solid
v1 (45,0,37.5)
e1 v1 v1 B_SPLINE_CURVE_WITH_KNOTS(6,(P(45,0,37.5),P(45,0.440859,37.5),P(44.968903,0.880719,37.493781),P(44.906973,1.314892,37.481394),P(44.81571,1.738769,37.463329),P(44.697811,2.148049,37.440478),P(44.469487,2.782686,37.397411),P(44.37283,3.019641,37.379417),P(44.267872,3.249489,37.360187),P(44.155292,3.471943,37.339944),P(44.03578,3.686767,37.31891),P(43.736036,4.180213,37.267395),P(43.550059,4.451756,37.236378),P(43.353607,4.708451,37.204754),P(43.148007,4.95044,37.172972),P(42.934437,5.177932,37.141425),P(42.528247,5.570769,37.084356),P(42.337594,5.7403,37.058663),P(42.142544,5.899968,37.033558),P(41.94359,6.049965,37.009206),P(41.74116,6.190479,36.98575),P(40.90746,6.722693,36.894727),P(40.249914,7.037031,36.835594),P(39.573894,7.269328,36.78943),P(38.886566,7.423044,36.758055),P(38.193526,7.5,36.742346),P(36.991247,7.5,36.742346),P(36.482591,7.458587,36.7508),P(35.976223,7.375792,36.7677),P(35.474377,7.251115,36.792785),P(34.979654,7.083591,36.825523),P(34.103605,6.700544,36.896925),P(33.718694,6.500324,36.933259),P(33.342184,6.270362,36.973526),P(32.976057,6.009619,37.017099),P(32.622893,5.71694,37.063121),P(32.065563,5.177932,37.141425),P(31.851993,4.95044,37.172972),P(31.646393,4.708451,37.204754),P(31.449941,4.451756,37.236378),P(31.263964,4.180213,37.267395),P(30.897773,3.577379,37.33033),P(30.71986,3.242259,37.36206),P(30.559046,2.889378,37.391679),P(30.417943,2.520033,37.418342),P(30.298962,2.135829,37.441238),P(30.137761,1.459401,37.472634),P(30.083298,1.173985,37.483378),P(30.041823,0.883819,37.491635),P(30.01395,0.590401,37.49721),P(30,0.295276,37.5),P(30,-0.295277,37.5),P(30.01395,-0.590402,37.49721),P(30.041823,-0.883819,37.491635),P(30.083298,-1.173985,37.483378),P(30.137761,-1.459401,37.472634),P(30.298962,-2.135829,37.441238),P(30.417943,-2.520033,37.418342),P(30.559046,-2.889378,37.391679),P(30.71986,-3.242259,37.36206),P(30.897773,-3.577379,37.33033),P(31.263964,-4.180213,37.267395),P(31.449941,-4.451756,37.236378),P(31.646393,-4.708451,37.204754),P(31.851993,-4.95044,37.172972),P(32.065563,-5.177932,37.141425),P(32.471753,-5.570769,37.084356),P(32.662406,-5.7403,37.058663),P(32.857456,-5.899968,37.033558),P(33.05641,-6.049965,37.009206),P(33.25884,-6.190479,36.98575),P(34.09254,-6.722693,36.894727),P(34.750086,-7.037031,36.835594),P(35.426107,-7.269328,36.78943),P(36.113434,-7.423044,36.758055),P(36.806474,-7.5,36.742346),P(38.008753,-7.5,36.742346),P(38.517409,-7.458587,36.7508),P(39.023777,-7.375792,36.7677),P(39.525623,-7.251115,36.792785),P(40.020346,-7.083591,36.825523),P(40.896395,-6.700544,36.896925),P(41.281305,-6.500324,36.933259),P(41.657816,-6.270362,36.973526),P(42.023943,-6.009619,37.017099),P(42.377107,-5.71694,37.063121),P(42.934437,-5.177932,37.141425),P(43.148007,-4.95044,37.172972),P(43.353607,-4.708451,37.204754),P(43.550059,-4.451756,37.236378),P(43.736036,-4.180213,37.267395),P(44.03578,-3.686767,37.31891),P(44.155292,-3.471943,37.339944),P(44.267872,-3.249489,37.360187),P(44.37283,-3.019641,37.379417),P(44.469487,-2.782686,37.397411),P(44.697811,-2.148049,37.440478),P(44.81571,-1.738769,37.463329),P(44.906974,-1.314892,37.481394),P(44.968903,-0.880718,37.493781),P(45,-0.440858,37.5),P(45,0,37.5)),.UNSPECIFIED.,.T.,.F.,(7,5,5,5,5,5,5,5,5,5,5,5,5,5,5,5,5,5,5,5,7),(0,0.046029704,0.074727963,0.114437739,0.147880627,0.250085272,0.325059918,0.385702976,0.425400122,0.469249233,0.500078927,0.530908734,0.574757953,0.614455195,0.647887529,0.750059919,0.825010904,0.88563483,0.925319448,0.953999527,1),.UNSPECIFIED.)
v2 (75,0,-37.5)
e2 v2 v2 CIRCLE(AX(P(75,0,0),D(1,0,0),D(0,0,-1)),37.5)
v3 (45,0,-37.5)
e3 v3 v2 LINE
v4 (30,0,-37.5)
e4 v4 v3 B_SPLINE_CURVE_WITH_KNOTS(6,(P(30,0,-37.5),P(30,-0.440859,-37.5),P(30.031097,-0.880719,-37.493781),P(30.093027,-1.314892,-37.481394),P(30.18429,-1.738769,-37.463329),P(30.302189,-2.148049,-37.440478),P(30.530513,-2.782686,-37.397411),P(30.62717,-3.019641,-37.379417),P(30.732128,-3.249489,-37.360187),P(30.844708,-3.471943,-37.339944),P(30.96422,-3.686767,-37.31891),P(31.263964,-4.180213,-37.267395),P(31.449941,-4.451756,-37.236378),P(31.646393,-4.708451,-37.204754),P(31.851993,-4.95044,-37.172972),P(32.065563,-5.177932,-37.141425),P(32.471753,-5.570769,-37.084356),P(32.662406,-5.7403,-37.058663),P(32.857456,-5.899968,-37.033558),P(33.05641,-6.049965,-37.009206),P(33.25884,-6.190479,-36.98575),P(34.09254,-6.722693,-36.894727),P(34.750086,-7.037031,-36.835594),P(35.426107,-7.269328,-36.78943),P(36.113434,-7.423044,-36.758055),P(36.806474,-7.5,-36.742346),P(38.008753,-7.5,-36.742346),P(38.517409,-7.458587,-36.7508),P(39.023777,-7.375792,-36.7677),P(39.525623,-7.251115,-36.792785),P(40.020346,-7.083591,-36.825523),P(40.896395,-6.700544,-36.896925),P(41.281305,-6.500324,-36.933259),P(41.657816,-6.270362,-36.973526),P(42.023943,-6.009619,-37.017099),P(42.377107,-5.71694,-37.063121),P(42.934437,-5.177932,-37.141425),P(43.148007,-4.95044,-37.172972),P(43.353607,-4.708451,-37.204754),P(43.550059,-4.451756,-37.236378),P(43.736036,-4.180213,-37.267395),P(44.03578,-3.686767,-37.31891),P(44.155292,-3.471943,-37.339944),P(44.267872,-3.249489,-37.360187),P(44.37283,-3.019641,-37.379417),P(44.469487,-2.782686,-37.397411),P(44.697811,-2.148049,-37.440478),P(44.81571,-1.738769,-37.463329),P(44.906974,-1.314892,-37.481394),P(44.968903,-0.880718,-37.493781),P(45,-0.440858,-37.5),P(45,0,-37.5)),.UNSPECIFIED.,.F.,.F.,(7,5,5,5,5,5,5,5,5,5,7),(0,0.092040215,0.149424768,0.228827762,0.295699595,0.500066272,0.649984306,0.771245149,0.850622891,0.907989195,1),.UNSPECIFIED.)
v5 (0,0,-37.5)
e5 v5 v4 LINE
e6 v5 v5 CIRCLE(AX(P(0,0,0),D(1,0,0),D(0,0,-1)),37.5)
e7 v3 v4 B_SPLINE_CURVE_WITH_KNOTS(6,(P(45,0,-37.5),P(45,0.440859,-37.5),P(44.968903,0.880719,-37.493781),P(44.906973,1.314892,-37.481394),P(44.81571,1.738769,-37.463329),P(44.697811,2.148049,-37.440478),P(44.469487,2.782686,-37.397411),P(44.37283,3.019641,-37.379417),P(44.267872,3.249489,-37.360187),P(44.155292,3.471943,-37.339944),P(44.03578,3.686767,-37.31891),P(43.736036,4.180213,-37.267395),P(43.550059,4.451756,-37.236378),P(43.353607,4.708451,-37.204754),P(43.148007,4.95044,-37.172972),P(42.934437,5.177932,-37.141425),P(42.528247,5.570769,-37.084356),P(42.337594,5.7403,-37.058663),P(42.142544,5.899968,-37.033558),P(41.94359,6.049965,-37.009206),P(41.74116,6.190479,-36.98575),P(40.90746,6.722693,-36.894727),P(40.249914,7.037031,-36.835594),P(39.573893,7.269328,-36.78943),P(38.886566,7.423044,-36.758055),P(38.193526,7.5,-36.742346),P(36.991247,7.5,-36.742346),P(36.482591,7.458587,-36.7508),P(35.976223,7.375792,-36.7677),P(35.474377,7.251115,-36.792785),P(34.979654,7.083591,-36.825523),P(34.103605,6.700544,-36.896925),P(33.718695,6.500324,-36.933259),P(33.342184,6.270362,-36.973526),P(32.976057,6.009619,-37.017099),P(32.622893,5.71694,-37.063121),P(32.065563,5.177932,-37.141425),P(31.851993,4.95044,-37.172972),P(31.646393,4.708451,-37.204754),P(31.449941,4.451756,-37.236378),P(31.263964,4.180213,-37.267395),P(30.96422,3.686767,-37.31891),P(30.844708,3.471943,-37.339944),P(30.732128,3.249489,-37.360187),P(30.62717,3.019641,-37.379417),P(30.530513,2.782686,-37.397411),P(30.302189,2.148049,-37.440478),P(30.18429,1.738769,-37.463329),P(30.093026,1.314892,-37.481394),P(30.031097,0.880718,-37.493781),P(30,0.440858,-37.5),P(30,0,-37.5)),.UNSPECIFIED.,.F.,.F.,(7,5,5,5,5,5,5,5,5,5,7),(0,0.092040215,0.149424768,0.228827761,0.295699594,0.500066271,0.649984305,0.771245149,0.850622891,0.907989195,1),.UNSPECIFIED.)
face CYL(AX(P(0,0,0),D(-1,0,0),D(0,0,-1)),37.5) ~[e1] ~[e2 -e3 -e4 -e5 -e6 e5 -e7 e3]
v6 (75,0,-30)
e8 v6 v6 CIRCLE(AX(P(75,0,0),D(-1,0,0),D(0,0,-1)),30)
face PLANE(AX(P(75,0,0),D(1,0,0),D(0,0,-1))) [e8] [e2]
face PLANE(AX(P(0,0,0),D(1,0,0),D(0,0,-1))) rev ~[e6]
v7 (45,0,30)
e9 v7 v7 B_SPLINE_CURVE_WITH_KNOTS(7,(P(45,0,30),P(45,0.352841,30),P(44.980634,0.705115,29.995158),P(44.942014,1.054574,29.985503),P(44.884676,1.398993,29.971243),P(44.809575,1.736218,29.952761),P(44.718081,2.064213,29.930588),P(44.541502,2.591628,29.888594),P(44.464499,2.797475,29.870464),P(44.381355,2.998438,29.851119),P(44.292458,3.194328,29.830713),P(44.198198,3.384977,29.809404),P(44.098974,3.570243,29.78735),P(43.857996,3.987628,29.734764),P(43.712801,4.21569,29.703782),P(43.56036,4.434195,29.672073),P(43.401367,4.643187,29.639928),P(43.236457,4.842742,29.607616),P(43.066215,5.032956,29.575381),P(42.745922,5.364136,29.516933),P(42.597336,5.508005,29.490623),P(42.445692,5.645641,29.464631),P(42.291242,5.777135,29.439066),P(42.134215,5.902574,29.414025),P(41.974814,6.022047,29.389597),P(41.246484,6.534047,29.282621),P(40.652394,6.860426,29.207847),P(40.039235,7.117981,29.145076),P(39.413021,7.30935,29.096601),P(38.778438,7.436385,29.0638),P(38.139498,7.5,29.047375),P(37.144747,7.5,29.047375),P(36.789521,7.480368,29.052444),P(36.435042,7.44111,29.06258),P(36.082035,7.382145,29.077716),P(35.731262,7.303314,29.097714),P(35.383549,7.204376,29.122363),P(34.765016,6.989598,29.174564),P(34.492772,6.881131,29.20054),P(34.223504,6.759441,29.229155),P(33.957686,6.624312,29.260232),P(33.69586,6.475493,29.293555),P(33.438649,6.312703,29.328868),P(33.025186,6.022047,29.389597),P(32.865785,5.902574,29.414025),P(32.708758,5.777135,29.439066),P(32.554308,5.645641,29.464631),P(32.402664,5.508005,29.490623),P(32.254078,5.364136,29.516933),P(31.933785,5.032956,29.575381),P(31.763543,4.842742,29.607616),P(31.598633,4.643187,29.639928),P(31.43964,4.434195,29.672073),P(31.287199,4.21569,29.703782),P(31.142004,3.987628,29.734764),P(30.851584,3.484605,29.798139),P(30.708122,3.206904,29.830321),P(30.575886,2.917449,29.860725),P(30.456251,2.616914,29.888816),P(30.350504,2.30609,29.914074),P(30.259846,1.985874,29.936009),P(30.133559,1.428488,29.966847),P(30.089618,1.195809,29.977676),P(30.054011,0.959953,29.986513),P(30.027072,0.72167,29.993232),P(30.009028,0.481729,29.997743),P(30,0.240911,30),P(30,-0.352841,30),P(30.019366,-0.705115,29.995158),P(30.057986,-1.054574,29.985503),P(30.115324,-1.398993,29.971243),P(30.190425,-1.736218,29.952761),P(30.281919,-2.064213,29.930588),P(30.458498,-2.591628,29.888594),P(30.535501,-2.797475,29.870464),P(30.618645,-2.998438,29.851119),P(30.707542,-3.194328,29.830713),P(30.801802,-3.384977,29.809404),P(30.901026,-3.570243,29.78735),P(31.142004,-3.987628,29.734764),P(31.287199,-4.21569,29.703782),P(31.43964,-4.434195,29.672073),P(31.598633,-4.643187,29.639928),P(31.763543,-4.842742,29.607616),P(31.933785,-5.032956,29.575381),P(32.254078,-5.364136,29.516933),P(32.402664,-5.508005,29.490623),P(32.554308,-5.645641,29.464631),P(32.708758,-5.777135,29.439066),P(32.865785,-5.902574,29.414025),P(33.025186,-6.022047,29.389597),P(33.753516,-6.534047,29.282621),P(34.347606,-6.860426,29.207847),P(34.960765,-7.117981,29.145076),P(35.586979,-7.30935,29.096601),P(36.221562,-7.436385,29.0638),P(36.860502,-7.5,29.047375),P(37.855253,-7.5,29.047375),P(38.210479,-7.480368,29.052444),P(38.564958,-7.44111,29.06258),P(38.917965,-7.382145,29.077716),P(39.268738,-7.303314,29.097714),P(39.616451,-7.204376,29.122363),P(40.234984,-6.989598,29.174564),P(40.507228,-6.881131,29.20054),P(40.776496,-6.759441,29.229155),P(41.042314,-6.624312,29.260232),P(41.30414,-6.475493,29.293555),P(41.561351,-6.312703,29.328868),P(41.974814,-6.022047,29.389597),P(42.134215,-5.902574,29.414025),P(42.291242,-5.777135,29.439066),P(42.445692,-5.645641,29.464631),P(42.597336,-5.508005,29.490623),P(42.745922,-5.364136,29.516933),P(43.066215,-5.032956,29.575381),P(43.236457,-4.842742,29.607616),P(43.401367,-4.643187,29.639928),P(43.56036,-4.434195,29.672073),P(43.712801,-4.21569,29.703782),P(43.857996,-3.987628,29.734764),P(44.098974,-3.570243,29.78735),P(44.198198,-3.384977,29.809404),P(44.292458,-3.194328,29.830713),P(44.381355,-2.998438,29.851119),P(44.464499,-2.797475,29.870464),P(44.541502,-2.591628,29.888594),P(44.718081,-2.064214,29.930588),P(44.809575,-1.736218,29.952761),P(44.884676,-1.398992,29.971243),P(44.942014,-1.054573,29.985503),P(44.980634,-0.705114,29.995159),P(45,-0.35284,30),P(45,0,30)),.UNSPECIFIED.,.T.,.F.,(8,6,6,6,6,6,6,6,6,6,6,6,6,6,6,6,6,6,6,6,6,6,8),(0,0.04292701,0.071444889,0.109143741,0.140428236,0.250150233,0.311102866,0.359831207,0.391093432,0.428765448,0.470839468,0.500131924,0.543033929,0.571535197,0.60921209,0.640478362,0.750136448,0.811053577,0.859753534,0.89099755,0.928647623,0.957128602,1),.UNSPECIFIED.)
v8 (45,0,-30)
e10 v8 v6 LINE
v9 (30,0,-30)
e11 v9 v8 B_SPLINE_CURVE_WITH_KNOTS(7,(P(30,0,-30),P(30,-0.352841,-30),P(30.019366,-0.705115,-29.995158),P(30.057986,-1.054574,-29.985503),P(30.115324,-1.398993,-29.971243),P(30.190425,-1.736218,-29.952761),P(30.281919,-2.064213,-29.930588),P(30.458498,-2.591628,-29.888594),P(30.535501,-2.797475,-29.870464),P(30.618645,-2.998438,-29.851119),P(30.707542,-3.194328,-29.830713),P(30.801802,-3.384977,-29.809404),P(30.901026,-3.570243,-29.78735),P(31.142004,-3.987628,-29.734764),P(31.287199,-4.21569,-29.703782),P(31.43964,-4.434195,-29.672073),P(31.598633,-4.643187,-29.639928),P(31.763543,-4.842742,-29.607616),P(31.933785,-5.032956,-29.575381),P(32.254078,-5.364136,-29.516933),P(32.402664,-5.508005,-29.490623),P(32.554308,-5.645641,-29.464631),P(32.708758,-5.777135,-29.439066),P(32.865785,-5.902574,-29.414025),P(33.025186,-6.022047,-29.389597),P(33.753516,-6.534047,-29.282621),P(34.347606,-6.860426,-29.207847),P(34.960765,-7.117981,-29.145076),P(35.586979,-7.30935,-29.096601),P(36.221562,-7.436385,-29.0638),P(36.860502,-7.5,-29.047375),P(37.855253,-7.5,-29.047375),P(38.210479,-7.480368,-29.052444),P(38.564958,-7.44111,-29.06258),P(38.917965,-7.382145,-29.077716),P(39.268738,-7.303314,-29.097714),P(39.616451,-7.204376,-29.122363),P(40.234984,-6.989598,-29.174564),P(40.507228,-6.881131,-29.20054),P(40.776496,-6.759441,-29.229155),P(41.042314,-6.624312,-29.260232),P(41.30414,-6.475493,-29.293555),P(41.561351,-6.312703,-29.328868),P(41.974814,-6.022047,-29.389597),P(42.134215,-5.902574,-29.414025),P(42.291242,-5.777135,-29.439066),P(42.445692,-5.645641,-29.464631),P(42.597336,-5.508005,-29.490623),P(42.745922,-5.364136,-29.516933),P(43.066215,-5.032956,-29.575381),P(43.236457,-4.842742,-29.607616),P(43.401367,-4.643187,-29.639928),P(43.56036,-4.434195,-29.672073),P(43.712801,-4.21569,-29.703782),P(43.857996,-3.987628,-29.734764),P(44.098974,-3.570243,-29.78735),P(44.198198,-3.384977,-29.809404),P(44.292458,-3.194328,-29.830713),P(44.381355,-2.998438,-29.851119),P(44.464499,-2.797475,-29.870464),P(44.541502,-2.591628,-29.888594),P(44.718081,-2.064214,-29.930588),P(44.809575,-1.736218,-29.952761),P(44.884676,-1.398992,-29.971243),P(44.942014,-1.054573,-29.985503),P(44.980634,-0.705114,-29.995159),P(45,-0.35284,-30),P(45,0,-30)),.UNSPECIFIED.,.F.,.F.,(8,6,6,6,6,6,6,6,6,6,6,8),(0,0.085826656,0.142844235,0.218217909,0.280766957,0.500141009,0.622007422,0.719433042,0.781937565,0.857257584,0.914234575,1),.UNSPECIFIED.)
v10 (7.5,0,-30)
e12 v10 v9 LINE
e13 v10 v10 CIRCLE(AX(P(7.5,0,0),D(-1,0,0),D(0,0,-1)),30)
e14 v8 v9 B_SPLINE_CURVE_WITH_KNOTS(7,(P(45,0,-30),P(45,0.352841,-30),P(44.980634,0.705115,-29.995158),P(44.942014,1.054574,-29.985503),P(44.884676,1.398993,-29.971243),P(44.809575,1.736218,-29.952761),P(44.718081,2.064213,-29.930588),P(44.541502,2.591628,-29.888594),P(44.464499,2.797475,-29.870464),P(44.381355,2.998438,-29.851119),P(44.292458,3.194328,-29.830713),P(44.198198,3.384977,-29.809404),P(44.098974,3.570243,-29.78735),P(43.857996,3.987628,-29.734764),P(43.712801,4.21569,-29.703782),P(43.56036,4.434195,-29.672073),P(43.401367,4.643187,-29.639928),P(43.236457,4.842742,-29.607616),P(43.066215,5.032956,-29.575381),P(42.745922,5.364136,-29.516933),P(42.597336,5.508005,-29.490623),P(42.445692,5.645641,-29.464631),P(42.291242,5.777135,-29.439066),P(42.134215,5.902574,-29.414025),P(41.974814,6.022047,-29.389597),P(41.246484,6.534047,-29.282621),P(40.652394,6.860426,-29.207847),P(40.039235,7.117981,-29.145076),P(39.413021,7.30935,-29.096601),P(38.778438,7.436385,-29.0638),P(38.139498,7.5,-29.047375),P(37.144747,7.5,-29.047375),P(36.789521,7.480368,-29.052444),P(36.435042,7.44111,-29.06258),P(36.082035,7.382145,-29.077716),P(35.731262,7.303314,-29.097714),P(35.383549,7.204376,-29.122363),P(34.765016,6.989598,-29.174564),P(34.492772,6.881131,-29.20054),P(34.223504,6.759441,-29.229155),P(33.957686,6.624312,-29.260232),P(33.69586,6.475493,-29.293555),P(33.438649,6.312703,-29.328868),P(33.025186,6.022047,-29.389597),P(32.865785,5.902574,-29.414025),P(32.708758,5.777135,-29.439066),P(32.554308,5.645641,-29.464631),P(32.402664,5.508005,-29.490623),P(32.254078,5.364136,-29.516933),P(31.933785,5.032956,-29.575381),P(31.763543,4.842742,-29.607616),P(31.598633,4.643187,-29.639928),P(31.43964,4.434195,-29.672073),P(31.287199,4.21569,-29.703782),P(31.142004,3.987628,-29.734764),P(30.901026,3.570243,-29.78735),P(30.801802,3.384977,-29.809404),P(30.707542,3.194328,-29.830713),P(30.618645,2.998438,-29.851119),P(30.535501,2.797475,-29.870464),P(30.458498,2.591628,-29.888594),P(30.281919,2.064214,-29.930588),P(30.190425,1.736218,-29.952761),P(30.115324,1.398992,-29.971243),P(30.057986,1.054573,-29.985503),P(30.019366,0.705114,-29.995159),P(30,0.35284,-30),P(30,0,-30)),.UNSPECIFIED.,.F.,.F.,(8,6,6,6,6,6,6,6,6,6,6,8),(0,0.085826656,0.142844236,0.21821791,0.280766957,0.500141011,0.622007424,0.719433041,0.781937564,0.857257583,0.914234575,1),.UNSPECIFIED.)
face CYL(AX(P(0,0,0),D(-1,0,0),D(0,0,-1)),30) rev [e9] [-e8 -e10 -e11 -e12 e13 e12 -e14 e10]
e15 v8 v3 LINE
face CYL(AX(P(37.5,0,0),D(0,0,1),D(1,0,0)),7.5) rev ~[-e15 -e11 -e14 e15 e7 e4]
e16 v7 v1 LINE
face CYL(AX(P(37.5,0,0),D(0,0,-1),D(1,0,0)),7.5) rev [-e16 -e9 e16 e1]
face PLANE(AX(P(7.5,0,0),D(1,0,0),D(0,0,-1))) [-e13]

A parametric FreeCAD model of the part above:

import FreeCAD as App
import Part
import Sketcher
Q = App.Units.Quantity


def faces_at(feature, points):
    """Names of the faces that lie closest to the given points."""
    faces = feature.Shape.Faces
    near = lambda p: min(range(len(faces)), key=lambda i: faces[i].distToShape(Part.Vertex(*p))[0])
    return sorted({f"Face{near(p) + 1}" for p in points})

doc = App.newDocument("Part")
params = doc.addObject("Spreadsheet::Sheet", "Params")
for row, (alias, value) in enumerate([
    ("sketch1_diameter", "75 mm"),
    ("pad1_length", "75 mm"),
    ("thickness_wall", "7.5 mm"),
    ("sketch2_diameter", "15 mm"),
], start=1):
    params.set(f"A{row}", alias)
    params.set(f"B{row}", "=" + value)
    params.setAlias(f"B{row}", alias)

body = doc.addObject("PartDesign::Body", "Body")

sketch1 = body.newObject("Sketcher::SketchObject", "Sketch")
sketch1.AttachmentSupport = (doc.getObject("YZ_Plane"), [""])
sketch1.MapMode = "FlatFace"
sketch1.addGeometry(Part.Circle(App.Vector(0, 0, 0), App.Vector(0, 0, 1), 38), False)
sketch1.addConstraint([
    Sketcher.Constraint("Coincident", 0, 3, -1, 1),
    Sketcher.Constraint("Diameter", 0, Q("75 mm")),
])
sketch1.setExpression("Constraints[1]", "Params.sketch1_diameter")
pad1 = body.newObject("PartDesign::Pad", "Pad")
pad1.Profile = sketch1
pad1.setExpression("Length", "Params.pad1_length")
doc.recompute()

thickness = body.newObject("PartDesign::Thickness", "Thickness")
thickness.Base = (pad1, faces_at(pad1, [(75, 0, 0)]))
thickness.setExpression("Value", "Params.thickness_wall")
thickness.Reversed = True
thickness.Join = "Intersection"

sketch2 = body.newObject("Sketcher::SketchObject", "Sketch001")
sketch2.AttachmentSupport = (doc.getObject("XY_Plane"), [""])
sketch2.MapMode = "FlatFace"
sketch2.addGeometry(Part.Circle(App.Vector(38, 0, 0), App.Vector(0, 0, 1), 8), False)
sketch2.addConstraint([
    Sketcher.Constraint("PointOnObject", 0, 3, -1),
    Sketcher.Constraint("Diameter", 0, Q("15 mm")),
    Sketcher.Constraint("DistanceX", -1, 1, 0, 3, Q("37.5 mm")),
])
sketch2.setExpression("Constraints[1]", "Params.sketch2_diameter")
pocket1 = body.newObject("PartDesign::Pocket", "Pocket")
pocket1.Profile = sketch2
pocket1.Type = "ThroughAll"
pocket1.Midplane = True

doc.recompute()
